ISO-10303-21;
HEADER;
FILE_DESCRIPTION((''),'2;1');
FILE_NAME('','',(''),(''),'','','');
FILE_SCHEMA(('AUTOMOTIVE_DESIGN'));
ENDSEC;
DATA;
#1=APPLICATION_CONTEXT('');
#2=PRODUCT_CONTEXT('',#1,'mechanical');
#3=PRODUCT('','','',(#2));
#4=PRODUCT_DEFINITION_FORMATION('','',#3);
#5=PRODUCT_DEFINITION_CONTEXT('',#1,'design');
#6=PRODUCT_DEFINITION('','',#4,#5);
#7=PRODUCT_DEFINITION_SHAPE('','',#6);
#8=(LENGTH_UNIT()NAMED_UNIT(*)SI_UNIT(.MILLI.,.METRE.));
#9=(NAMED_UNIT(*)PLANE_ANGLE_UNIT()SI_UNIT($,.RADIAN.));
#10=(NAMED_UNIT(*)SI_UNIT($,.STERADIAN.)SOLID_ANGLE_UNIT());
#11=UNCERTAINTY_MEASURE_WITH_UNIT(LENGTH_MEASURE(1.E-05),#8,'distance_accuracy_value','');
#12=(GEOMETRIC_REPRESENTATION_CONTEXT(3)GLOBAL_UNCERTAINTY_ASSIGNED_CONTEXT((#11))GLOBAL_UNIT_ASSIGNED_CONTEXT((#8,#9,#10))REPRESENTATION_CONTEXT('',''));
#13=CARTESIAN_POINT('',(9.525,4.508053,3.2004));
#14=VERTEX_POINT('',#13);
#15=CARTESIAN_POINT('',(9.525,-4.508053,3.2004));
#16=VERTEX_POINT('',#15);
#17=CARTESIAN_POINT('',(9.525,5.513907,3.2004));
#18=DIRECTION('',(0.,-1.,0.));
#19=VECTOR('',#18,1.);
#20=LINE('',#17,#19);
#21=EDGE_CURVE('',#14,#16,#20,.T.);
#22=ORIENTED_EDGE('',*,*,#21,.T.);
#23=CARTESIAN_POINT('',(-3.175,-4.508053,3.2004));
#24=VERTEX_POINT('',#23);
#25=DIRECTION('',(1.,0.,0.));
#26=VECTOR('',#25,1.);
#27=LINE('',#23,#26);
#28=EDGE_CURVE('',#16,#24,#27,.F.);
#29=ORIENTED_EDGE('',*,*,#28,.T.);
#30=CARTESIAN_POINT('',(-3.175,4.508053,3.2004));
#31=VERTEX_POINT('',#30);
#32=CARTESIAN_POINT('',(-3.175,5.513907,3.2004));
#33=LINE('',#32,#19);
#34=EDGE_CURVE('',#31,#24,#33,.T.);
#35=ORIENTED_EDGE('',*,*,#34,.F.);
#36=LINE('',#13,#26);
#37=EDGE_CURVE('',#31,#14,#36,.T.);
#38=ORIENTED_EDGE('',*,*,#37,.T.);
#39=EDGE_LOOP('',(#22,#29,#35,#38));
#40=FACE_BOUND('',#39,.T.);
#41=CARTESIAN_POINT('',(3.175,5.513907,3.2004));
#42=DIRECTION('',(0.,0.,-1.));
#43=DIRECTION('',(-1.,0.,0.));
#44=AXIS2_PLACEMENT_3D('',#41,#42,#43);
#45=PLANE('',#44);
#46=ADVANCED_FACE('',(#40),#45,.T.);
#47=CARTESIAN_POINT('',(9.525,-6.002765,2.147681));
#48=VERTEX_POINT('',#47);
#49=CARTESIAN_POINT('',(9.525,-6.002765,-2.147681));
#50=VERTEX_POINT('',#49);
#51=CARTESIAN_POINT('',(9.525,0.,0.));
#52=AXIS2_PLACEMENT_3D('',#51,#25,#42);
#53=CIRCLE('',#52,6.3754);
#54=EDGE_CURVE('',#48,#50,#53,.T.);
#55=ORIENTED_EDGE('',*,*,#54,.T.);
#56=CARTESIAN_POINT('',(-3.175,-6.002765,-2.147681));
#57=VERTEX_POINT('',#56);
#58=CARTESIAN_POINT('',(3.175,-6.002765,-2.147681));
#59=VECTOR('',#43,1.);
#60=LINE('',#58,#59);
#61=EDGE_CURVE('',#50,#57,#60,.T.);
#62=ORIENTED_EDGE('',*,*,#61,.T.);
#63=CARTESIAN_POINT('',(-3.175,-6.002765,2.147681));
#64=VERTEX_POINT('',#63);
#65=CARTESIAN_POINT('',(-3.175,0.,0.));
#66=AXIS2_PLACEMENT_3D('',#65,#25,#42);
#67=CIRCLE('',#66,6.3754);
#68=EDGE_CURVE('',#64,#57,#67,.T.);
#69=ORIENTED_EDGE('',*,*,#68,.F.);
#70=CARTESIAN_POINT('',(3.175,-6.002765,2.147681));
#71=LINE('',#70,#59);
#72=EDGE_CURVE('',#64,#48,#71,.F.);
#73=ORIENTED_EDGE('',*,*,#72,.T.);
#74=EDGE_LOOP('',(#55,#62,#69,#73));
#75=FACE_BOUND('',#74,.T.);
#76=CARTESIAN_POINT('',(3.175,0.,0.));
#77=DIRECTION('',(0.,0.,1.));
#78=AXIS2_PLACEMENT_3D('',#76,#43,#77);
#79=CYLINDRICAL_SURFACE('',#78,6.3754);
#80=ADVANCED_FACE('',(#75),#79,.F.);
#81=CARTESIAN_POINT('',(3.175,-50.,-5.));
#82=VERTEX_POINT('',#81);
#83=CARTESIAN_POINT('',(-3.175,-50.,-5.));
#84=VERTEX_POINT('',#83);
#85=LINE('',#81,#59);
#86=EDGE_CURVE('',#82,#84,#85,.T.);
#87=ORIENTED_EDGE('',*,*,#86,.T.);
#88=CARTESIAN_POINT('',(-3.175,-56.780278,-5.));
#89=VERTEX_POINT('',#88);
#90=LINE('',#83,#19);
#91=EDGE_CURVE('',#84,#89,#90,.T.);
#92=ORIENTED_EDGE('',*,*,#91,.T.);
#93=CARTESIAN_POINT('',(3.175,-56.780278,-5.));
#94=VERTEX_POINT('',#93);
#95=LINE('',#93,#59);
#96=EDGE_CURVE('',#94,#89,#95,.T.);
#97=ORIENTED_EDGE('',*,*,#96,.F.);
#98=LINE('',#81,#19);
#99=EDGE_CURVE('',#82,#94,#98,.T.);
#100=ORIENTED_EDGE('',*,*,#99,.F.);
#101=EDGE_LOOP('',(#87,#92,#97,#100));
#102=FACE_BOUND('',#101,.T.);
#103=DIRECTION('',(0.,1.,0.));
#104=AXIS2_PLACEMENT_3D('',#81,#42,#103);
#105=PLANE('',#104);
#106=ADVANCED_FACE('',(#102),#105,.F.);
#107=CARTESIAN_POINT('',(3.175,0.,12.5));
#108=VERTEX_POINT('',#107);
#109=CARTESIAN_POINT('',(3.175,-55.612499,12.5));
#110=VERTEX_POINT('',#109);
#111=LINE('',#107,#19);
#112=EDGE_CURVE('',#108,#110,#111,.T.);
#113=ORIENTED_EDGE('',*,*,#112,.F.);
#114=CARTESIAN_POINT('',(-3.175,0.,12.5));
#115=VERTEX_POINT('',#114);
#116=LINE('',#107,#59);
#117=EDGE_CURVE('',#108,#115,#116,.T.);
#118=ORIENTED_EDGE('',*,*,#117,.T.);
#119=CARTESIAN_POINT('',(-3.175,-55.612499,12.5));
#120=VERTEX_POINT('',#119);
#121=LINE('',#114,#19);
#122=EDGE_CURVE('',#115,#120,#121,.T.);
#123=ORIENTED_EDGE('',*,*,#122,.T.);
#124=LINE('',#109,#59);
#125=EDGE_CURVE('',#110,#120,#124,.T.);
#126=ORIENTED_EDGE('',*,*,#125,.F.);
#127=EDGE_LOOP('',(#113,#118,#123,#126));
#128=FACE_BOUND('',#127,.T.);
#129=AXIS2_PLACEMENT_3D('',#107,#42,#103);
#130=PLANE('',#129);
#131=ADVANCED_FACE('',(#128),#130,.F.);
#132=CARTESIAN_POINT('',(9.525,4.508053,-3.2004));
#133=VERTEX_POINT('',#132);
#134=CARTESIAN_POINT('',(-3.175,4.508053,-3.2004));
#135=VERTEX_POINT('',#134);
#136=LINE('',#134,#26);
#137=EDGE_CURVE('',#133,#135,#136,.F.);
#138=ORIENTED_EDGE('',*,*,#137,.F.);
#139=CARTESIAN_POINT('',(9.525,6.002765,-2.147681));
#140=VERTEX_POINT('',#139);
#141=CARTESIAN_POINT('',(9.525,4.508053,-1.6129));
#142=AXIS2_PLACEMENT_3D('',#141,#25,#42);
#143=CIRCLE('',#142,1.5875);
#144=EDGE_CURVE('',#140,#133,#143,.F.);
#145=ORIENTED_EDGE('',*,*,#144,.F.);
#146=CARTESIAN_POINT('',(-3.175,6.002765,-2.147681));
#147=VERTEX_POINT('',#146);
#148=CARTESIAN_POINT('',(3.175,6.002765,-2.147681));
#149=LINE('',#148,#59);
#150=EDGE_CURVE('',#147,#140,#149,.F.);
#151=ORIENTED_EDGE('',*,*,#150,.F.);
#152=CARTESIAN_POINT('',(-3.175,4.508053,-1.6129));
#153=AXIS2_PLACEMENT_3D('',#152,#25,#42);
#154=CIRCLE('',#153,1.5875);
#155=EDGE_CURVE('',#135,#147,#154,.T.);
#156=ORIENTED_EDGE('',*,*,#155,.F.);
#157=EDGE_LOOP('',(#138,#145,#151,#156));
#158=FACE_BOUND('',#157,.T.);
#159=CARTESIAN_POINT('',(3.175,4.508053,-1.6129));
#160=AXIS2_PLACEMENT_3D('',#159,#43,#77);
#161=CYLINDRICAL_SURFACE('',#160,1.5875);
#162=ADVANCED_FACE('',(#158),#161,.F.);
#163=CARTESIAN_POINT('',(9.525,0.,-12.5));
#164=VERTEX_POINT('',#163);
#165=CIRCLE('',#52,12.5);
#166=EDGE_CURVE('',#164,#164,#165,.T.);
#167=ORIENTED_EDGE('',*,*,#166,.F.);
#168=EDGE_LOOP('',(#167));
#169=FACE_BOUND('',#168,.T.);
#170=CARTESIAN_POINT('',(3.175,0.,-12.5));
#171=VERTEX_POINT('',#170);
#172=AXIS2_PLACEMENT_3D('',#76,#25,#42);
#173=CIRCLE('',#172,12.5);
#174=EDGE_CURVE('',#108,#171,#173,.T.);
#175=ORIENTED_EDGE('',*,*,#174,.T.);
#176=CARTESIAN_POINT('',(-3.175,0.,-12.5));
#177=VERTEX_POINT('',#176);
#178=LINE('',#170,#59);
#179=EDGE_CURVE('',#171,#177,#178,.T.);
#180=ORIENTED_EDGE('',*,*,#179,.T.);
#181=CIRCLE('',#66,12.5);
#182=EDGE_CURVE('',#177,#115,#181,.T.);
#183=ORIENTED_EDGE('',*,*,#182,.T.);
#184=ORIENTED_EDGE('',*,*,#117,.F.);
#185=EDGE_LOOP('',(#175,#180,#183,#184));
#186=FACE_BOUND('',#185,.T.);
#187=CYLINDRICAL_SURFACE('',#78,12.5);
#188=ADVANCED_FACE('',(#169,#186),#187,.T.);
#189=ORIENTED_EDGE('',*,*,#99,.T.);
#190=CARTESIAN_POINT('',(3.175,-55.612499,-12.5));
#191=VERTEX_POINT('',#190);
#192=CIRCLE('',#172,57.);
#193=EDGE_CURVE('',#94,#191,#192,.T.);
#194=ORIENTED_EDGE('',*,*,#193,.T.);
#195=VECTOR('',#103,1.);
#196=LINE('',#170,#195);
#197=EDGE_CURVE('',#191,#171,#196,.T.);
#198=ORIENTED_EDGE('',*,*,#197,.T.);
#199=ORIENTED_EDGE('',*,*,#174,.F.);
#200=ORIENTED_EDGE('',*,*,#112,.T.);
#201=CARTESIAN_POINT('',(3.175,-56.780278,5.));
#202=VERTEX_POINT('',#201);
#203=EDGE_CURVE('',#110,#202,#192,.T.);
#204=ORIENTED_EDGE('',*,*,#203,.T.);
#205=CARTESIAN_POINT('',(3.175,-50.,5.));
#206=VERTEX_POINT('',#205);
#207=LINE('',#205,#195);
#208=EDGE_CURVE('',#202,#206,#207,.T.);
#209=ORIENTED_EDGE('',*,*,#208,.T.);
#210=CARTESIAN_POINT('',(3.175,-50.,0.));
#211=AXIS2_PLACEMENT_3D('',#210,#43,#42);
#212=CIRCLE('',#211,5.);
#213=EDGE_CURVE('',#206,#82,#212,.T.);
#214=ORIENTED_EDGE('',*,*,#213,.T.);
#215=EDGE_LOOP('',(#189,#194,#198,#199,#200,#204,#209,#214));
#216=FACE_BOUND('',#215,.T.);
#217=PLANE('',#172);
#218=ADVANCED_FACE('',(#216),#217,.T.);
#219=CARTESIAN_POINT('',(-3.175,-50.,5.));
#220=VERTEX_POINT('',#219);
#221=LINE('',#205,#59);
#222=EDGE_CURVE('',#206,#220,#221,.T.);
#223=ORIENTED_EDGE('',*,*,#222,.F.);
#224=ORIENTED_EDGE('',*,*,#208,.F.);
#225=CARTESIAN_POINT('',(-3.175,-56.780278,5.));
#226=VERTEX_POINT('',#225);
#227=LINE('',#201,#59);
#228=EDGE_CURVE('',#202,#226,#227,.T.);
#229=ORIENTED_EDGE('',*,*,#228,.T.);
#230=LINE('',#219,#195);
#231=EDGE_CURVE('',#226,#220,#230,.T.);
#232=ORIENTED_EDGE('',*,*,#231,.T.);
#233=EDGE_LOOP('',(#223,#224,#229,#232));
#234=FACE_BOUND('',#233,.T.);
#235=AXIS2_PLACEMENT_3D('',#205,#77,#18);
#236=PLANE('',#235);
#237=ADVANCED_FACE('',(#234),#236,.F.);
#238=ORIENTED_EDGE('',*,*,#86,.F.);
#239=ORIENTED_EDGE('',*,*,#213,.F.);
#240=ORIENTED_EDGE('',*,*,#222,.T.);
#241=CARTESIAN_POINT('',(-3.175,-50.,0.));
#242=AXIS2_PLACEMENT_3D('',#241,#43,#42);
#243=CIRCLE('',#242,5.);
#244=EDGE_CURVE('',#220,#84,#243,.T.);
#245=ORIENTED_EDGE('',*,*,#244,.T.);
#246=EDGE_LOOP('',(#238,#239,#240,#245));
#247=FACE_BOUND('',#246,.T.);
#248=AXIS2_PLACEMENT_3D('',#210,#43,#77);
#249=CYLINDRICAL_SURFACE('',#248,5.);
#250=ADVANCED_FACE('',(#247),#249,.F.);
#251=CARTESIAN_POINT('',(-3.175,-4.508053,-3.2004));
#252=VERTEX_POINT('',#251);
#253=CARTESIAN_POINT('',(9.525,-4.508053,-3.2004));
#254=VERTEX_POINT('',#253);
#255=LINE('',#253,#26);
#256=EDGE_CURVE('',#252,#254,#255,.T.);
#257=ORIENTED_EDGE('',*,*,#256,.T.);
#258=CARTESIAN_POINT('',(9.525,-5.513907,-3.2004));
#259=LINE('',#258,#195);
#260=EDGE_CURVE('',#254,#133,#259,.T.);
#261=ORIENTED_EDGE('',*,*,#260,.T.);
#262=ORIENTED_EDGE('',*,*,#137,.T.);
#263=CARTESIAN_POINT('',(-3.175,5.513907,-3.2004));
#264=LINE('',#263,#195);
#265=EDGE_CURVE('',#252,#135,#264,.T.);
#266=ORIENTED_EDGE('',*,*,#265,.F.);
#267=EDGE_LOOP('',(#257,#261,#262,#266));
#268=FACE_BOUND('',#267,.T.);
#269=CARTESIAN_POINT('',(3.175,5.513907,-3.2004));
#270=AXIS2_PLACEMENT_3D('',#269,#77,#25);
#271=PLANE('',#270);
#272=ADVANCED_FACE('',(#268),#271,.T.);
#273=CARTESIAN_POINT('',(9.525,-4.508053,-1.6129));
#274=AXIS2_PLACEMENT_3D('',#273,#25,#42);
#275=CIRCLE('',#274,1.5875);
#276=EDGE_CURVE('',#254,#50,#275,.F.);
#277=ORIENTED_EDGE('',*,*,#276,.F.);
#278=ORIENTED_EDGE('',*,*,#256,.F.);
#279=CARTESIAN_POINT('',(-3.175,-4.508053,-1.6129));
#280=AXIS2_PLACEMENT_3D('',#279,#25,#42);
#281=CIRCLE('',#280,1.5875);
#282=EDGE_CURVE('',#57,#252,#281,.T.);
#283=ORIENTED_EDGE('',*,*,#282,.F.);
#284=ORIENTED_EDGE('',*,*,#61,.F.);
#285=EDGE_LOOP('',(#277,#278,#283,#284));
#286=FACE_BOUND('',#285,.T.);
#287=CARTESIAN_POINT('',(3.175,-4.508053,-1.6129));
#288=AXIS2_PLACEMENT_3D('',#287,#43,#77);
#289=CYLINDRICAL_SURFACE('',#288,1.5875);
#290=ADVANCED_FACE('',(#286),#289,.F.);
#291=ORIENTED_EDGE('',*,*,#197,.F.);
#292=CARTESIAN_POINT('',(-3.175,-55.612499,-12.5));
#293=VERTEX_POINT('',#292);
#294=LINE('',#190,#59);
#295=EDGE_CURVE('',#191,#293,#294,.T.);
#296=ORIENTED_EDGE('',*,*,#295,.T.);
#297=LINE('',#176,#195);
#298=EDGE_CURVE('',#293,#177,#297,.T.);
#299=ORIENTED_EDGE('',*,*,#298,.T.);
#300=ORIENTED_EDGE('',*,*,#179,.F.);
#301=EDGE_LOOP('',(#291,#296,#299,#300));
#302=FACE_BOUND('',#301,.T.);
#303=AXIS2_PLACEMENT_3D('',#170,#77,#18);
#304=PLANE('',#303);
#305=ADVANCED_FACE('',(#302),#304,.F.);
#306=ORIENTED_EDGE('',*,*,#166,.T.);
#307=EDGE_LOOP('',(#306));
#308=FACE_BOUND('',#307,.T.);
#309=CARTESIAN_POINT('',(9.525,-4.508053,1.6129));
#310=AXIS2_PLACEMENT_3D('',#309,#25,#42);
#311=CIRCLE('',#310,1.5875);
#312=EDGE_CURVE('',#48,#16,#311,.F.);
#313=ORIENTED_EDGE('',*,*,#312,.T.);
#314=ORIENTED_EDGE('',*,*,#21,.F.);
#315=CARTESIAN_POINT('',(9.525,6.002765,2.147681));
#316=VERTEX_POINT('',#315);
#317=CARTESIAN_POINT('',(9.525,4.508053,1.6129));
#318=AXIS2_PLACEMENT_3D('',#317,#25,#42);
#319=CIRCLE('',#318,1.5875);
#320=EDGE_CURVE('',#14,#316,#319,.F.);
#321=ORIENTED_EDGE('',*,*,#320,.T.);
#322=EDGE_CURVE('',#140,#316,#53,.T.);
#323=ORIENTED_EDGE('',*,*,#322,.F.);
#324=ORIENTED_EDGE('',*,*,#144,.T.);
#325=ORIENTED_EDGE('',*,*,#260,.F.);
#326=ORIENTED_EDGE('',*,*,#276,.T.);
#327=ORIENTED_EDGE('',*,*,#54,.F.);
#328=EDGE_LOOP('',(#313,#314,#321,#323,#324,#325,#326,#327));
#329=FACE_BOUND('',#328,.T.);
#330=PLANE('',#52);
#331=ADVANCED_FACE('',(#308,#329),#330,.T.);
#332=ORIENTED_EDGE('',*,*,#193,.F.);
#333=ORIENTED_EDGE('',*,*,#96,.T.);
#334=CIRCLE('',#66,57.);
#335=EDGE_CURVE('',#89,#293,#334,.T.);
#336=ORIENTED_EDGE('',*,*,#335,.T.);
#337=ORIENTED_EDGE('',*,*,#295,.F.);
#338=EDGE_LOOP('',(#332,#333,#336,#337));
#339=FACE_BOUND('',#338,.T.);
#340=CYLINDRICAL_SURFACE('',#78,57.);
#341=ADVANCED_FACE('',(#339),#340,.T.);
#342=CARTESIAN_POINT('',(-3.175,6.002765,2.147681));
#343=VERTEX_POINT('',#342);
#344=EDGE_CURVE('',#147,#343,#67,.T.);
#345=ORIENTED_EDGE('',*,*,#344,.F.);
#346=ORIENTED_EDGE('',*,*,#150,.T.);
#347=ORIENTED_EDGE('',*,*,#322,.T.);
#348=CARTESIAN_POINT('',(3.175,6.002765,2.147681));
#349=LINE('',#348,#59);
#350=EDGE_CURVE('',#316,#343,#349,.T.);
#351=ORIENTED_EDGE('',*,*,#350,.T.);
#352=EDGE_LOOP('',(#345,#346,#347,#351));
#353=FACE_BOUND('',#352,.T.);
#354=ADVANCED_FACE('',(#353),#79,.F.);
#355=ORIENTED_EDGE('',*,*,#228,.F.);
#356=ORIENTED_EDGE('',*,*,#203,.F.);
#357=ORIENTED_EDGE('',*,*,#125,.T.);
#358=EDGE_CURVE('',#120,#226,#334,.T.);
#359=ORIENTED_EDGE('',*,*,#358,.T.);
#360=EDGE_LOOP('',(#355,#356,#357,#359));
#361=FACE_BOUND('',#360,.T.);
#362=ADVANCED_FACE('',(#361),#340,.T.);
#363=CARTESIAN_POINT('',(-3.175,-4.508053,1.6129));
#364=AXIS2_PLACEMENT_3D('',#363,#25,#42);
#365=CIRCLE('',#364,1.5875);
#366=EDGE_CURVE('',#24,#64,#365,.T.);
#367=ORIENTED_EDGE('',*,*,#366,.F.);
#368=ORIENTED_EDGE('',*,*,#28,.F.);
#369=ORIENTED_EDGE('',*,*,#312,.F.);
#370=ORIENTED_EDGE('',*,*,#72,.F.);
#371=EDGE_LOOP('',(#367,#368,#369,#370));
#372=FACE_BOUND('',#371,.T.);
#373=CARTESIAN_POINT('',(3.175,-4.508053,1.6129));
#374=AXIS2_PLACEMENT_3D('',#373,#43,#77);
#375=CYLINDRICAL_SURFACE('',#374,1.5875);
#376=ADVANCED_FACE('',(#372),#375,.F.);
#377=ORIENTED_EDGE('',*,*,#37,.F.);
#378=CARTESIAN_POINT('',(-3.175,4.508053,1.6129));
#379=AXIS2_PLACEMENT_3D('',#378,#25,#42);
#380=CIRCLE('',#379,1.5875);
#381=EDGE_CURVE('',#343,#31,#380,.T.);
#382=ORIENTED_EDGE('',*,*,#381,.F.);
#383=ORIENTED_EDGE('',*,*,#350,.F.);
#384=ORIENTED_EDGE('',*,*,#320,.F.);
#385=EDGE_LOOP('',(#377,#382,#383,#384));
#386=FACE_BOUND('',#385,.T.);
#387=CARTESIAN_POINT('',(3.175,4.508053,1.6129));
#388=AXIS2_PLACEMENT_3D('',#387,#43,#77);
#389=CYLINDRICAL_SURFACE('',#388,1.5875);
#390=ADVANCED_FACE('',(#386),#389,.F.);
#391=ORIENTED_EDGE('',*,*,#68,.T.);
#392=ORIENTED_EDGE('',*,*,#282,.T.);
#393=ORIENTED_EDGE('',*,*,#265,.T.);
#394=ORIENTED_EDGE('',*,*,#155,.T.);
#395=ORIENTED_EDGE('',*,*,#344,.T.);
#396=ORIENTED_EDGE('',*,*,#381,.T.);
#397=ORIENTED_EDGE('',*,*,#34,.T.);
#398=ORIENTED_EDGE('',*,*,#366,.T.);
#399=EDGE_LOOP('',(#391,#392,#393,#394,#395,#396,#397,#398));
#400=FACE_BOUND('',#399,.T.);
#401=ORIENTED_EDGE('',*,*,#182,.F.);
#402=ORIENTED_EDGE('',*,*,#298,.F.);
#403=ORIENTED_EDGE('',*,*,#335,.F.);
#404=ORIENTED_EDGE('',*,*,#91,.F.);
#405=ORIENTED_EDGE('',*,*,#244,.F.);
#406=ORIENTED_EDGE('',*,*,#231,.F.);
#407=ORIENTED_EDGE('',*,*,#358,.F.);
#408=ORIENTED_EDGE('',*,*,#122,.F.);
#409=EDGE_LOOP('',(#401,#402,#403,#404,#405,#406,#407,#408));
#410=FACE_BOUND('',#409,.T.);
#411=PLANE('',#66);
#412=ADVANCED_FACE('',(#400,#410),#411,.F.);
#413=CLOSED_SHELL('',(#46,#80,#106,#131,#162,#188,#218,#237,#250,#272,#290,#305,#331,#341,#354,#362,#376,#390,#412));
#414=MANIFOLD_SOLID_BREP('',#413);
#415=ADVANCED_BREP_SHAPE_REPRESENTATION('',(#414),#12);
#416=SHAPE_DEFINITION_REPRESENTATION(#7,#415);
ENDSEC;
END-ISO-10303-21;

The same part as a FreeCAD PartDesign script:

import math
import FreeCAD as App
import Part
import Sketcher
from FreeCAD import Vector
Q = App.Units.Quantity


def edges_at(feature, points):
    """Names of the edges that pass closest to the given points."""
    edges = feature.Shape.Edges
    near = lambda p: min(range(len(edges)), key=lambda i: edges[i].distToShape(Part.Vertex(*p))[0])
    return sorted({f"Edge{near(p) + 1}" for p in points})

doc = App.newDocument("Part")
params = doc.addObject("Spreadsheet::Sheet", "Params")
for row, (alias, value) in enumerate([
    ("sketch1_radius", "0.251 in"),
    ("pad1_length", "0.25 in"),
    ("sketch2_radius", "0.251 in"),
    ("pad2_length", "0.25 in"),
    ("fillet_radius", "0.0625 in"),
], start=1):
    params.set(f"A{row}", alias)
    params.set(f"B{row}", "=" + value)
    params.setAlias(f"B{row}", alias)

body = doc.addObject("PartDesign::Body", "Body")

# Sketch on YZ plane
sketch1 = doc.addObject("Sketcher::SketchObject", "Sketch")
body.addObject(sketch1)
sketch1.AttachmentSupport = (doc.YZ_Plane, [""])
sketch1.MapMode = "FlatFace"
sketch1.addGeometry([
    Part.LineSegment(Vector(-55.612499, -12.5, 0), Vector(0, -12.5, 0)),  # 0
    Part.ArcOfCircle(Part.Circle(Vector(0, 0, 0), Vector(0, 0, 1), 12.5), math.radians(-90), math.radians(90)),  # 1
    Part.LineSegment(Vector(0, 12.5, 0), Vector(-55.612499, 12.5, 0)),  # 2
    Part.ArcOfCircle(Part.Circle(Vector(0, 0, 0), Vector(0, 0, 1), 57), math.radians(167.332181), math.radians(174.967587)),  # 3
    Part.LineSegment(Vector(-56.780278, 5, 0), Vector(-50, 5, 0)),  # 4
    Part.ArcOfCircle(Part.Circle(Vector(-50, 0, 0), Vector(0, 0, 1), 5), math.radians(-90), math.radians(90)),  # 5
    Part.LineSegment(Vector(-50, -5, 0), Vector(-56.780278, -5, 0)),  # 6
    Part.ArcOfCircle(Part.Circle(Vector(0, 0, 0), Vector(0, 0, 1), 57), math.radians(-174.967587), math.radians(-167.332181)),  # 7
    Part.ArcOfCircle(Part.Circle(Vector(0, 0, 0), Vector(0, 0, 1), 6.3754), math.radians(-30.13188), math.radians(30.13188)),  # 8
    Part.LineSegment(Vector(5.513907, -3.2004, 0), Vector(-5.513907, -3.2004, 0)),  # 9
    Part.ArcOfCircle(Part.Circle(Vector(0, 0, 0), Vector(0, 0, 1), 6.3754), math.radians(149.86812), math.radians(210.13188)),  # 10
    Part.LineSegment(Vector(-5.513907, 3.2004, 0), Vector(5.513907, 3.2004, 0)),  # 11
], False)
sketch1.addConstraint([
    Sketcher.Constraint("Tangent", 0, 2, 1, 1),
    Sketcher.Constraint("Tangent", 1, 2, 2, 1),
    Sketcher.Constraint("Coincident", 2, 2, 3, 1),
    Sketcher.Constraint("Coincident", 3, 2, 4, 1),
    Sketcher.Constraint("Tangent", 4, 2, 5, 2),
    Sketcher.Constraint("Tangent", 5, 1, 6, 1),
    Sketcher.Constraint("Coincident", 6, 2, 7, 1),
    Sketcher.Constraint("Coincident", 7, 2, 0, 1),
    Sketcher.Constraint("Coincident", 8, 1, 9, 1),
    Sketcher.Constraint("Coincident", 9, 2, 10, 2),
    Sketcher.Constraint("Coincident", 10, 1, 11, 1),
    Sketcher.Constraint("Coincident", 11, 2, 8, 2),
    Sketcher.Constraint("Horizontal", 0),
    Sketcher.Constraint("Horizontal", 2),
    Sketcher.Constraint("Horizontal", 4),
    Sketcher.Constraint("Horizontal", 6),
    Sketcher.Constraint("Horizontal", 9),
    Sketcher.Constraint("Horizontal", 11),
    Sketcher.Constraint("Coincident", 1, 3, -1, 1),
    Sketcher.Constraint("Coincident", 3, 3, -1, 1),
    Sketcher.Constraint("Coincident", 7, 3, -1, 1),
    Sketcher.Constraint("Coincident", 8, 3, -1, 1),
    Sketcher.Constraint("Coincident", 10, 3, -1, 1),
    Sketcher.Constraint("Equal", 3, 7),
    Sketcher.Constraint("Equal", 8, 10),
    Sketcher.Constraint("PointOnObject", 5, 3, -1),
    Sketcher.Constraint("Vertical", 9, 2, 10, 1),
    Sketcher.Constraint("Radius", 8, Q("0.251 in")),
    Sketcher.Constraint("Radius", 1, 12.5),
    Sketcher.Constraint("Radius", 3, 57.0),
    Sketcher.Constraint("Radius", 5, 5.0),
    Sketcher.Constraint("DistanceY", 8, 1, -1, 1, Q("0.126 in")),
    Sketcher.Constraint("DistanceX", 4, 1, 4, 2, 6.780278),
])
sketch1.setExpression("Constraints[27]", "Params.sketch1_radius")
pad1 = doc.addObject("PartDesign::Pad", "Pad")
body.addObject(pad1)
pad1.Profile = sketch1
pad1.setExpression("Length", "Params.pad1_length")
pad1.Midplane = True

# Sketch on YZ plane
sketch2 = doc.addObject("Sketcher::SketchObject", "Sketch001")
body.addObject(sketch2)
sketch2.AttachmentSupport = (doc.YZ_Plane, [""])
sketch2.MapMode = "FlatFace"
sketch2.AttachmentOffset = App.Placement(Vector(0, 0, 0.125 * 25.4), App.Rotation())
sketch2.addGeometry([
    Part.Circle(Vector(0, 0, 0), Vector(0, 0, 1), 12.5),  # 0
    Part.LineSegment(Vector(-5.513907, 3.2004, 0), Vector(5.513907, 3.2004, 0)),  # 1
    Part.ArcOfCircle(Part.Circle(Vector(0, 0, 0), Vector(0, 0, 1), 6.3754), math.radians(-30.13188), math.radians(30.13188)),  # 2
    Part.LineSegment(Vector(5.513907, -3.2004, 0), Vector(-5.513907, -3.2004, 0)),  # 3
    Part.ArcOfCircle(Part.Circle(Vector(0, 0, 0), Vector(0, 0, 1), 6.3754), math.radians(149.86812), math.radians(210.13188)),  # 4
], False)
sketch2.addConstraint([
    Sketcher.Constraint("Coincident", 1, 2, 2, 2),
    Sketcher.Constraint("Coincident", 2, 1, 3, 1),
    Sketcher.Constraint("Coincident", 3, 2, 4, 2),
    Sketcher.Constraint("Coincident", 4, 1, 1, 1),
    Sketcher.Constraint("Horizontal", 1),
    Sketcher.Constraint("Horizontal", 3),
    Sketcher.Constraint("Coincident", 0, 3, -1, 1),
    Sketcher.Constraint("Coincident", 2, 3, -1, 1),
    Sketcher.Constraint("Coincident", 4, 3, -1, 1),
    Sketcher.Constraint("Equal", 2, 4),
    Sketcher.Constraint("Vertical", 1, 2, 2, 1),
    Sketcher.Constraint("Radius", 2, Q("0.251 in")),
    Sketcher.Constraint("Diameter", 0, 25.0),
    Sketcher.Constraint("DistanceY", -1, 1, 1, 2, Q("0.126 in")),
])
sketch2.setExpression("Constraints[11]", "Params.sketch2_radius")
pad2 = doc.addObject("PartDesign::Pad", "Pad001")
body.addObject(pad2)
pad2.Profile = sketch2
pad2.setExpression("Length", "Params.pad2_length")
doc.recompute()

fillet = doc.addObject("PartDesign::Fillet", "Fillet")
body.addObject(fillet)
fillet.Base = (pad2, edges_at(pad2, [
    (0, 5.514, -3.2),
    (0, 5.514, 3.2),
    (0, -5.514, 3.2),
    (0, -5.514, -3.2),
]))
fillet.setExpression("Radius", "Params.fillet_radius")

doc.recompute()
